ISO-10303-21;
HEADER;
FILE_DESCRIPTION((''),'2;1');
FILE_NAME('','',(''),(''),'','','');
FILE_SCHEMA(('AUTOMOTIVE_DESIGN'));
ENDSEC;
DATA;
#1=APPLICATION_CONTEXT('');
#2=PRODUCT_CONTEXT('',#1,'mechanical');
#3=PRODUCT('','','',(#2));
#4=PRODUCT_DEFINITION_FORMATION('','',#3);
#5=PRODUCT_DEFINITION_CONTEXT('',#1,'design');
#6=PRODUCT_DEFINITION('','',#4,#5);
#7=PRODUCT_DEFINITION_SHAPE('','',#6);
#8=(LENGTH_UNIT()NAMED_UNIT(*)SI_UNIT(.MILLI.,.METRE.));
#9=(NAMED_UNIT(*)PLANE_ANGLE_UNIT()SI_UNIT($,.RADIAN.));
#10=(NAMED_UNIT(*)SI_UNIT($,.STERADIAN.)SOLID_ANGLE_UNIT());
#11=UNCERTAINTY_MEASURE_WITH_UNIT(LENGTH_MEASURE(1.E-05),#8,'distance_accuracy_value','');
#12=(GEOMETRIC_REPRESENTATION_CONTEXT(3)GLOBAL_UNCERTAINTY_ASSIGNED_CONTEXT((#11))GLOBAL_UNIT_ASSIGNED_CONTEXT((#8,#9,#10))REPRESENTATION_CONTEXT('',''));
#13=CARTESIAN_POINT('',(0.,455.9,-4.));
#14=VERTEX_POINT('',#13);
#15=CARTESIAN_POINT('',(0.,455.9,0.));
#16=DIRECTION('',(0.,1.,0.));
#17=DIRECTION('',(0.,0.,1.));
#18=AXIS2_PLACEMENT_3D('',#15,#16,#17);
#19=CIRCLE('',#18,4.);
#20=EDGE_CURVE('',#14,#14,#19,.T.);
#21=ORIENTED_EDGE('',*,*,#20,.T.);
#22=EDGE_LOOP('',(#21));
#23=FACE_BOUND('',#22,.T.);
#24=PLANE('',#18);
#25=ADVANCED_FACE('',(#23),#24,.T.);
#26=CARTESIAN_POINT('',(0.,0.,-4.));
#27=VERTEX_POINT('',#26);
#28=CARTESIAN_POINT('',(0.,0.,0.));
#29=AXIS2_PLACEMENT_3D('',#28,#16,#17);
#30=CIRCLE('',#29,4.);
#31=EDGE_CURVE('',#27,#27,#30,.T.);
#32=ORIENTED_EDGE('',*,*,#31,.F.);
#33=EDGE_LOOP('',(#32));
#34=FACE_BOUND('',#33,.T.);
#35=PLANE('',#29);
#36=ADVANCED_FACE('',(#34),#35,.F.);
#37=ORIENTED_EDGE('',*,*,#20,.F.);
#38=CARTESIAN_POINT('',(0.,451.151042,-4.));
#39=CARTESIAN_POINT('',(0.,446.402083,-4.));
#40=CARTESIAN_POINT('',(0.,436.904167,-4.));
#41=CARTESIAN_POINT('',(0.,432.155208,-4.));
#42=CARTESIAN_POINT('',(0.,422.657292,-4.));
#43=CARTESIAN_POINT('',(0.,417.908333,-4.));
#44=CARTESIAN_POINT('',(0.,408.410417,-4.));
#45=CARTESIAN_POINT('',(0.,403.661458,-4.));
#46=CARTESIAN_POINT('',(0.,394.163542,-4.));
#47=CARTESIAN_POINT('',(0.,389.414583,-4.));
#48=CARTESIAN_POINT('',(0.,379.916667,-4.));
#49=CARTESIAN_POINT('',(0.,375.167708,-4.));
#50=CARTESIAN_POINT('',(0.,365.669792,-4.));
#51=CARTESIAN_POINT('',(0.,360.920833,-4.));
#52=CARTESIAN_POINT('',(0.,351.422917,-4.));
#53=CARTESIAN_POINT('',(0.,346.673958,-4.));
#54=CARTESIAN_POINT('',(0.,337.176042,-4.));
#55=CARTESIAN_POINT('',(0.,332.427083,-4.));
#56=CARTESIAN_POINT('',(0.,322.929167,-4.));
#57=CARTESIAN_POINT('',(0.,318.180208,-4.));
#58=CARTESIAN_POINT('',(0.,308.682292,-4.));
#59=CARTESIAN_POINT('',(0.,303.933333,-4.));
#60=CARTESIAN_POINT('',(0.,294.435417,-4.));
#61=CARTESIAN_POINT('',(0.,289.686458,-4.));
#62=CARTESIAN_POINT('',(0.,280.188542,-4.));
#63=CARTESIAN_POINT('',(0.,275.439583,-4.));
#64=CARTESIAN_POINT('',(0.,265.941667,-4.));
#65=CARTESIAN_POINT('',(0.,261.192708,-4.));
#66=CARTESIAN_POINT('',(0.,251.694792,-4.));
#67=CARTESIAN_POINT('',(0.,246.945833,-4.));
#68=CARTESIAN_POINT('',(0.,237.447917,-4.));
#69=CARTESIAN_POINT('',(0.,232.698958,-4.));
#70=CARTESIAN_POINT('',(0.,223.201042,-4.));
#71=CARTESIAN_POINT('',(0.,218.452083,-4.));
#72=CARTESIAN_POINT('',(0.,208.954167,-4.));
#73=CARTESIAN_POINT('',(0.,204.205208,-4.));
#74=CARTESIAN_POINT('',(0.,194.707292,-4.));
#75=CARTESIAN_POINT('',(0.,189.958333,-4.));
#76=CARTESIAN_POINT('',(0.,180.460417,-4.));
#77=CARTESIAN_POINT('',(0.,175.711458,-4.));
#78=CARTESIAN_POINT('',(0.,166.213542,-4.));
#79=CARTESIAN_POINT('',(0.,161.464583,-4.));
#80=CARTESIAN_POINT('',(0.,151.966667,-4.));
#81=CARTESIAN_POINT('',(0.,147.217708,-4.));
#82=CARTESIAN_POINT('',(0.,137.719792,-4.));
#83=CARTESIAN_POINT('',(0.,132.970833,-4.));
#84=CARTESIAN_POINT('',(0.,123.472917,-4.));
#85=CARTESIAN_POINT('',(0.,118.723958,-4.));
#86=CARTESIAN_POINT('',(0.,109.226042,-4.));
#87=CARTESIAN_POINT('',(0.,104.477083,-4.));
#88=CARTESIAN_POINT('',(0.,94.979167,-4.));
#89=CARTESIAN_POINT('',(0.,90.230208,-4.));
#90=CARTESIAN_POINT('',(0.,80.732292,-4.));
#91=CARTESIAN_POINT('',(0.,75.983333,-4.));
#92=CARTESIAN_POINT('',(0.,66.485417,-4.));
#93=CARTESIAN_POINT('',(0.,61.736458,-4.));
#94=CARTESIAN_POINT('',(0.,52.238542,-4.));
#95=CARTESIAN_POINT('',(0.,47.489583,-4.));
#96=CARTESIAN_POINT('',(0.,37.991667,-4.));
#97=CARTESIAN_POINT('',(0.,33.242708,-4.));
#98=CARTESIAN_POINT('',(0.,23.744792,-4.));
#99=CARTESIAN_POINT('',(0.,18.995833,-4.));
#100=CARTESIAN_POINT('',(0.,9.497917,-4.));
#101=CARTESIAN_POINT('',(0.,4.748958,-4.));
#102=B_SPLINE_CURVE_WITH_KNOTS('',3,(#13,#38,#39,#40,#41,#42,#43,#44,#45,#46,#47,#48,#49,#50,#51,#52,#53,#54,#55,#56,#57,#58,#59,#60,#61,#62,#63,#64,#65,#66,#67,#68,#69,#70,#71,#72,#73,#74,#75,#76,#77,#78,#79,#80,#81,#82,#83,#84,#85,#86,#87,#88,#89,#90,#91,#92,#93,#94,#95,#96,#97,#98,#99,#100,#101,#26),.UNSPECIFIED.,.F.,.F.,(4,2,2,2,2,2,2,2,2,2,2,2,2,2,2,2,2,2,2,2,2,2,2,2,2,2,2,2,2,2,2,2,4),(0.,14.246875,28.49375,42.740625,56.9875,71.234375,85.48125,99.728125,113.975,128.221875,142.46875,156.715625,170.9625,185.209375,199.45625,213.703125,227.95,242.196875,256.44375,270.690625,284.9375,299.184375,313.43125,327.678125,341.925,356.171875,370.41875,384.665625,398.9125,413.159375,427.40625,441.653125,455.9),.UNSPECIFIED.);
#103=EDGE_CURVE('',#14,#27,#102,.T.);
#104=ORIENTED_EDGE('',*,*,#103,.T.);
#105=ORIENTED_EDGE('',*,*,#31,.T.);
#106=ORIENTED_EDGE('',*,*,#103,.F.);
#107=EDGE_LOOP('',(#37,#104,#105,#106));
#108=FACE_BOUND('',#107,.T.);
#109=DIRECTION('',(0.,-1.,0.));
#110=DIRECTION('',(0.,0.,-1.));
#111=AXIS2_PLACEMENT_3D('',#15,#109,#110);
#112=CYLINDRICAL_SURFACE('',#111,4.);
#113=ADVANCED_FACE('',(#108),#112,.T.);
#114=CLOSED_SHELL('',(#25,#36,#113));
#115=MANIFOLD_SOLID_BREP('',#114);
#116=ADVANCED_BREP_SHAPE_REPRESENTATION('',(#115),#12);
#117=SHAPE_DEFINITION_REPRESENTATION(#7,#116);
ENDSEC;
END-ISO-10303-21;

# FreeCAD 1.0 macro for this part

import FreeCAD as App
import Part
import Sketcher
Q = App.Units.Quantity

doc = App.newDocument("Part")
body = doc.addObject("PartDesign::Body", "Body")

# Sketch on XZ plane
sketch1 = doc.addObject("Sketcher::SketchObject", "Sketch")
body.addObject(sketch1)
sketch1.AttachmentSupport = (doc.XZ_Plane, [""])
sketch1.MapMode = "FlatFace"
sketch1.addGeometry(Part.Circle(App.Vector(0, 0, 0), App.Vector(0, 0, 1), 4), False)
sketch1.addConstraint(Sketcher.Constraint("Coincident", 0, 3, -1, 1))
sketch1.addConstraint(Sketcher.Constraint("Diameter", 0, Q("8 mm")))
pad1 = doc.addObject("PartDesign::Pad", "Pad")
body.addObject(pad1)
pad1.Profile = sketch1
pad1.Length = 455.9
pad1.Reversed = True

doc.recompute()
